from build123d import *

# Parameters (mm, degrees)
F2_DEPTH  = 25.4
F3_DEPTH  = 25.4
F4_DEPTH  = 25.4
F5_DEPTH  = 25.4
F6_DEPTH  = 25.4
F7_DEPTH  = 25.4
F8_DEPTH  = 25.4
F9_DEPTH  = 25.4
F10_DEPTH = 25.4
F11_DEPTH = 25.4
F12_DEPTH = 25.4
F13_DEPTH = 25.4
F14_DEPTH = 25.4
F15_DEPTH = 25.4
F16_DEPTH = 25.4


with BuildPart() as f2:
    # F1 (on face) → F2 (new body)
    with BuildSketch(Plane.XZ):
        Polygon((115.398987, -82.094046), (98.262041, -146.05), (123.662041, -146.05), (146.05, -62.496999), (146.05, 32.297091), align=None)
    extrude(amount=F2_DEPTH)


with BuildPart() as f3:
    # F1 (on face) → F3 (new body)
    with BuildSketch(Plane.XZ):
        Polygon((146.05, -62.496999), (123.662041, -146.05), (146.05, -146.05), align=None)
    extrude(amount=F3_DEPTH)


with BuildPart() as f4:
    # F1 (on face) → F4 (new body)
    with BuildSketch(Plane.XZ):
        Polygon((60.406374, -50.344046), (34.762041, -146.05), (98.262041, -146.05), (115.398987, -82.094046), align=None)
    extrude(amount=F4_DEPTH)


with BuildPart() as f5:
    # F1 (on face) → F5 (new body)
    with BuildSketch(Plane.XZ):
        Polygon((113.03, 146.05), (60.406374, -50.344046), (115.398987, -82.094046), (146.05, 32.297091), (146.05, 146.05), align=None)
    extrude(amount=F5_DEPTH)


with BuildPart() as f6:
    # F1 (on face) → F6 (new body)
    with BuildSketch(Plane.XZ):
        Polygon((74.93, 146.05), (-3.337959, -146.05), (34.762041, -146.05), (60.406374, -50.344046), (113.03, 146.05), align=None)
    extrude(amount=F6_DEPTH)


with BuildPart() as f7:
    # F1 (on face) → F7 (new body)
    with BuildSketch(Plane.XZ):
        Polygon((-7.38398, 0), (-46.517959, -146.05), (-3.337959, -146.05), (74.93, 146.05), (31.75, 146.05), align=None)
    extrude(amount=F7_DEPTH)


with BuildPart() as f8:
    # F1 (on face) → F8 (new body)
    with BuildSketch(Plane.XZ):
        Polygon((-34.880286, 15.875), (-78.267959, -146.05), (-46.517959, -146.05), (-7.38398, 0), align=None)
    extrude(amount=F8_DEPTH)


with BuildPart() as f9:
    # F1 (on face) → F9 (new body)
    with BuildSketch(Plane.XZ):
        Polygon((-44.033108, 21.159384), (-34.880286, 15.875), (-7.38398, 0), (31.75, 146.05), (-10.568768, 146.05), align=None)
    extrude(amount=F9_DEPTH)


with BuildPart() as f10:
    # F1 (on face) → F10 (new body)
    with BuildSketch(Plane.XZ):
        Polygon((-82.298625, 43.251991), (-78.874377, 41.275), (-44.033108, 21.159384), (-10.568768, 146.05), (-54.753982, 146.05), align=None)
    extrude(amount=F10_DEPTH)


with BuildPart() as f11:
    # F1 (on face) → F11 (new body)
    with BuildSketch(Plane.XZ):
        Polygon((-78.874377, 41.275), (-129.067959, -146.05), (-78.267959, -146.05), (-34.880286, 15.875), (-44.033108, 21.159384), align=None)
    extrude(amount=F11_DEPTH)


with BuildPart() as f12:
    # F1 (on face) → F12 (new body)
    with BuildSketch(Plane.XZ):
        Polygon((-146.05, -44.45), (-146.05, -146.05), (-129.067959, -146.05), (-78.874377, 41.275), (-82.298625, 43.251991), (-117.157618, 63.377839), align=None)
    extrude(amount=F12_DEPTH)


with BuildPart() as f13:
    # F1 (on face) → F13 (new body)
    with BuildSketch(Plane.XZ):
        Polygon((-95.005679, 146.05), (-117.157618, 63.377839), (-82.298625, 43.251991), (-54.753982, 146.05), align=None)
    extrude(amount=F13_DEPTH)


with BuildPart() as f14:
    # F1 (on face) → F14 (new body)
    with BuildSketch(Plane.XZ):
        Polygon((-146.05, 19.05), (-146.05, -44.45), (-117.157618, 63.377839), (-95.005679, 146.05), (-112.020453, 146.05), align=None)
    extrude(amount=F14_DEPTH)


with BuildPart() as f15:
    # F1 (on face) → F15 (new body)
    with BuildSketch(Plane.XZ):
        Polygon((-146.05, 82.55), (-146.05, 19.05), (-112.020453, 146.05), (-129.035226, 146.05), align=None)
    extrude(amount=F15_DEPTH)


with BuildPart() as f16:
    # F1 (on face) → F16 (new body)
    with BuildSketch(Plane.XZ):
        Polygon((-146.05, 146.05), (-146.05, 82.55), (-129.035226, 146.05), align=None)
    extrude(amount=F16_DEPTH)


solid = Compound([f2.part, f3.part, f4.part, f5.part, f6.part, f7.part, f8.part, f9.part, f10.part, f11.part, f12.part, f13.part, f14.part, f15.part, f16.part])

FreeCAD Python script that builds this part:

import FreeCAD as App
import Part
import Sketcher
from FreeCAD import Vector
Q = App.Units.Quantity


def add_polygon(sketch, points):
    """Adds a closed chain of lines whose ends are joined by coincident constraints."""
    first, n = sketch.GeometryCount, len(points)
    for a, b in zip(points, points[1:] + points[:1]):
        sketch.addGeometry(Part.LineSegment(App.Vector(*a, 0), App.Vector(*b, 0)), False)
    for i in range(n):
        sketch.addConstraint(Sketcher.Constraint("Coincident", first + i, 2, first + (i + 1) % n, 1))

doc = App.newDocument("Part")
body = doc.addObject("PartDesign::Body", "Body")

# Sketch on XZ plane
sketch1 = doc.addObject("Sketcher::SketchObject", "Sketch")
body.addObject(sketch1)
sketch1.AttachmentSupport = (doc.XZ_Plane, [""])
sketch1.MapMode = "FlatFace"
add_polygon(sketch1, [(115, -82), (98, -146), (124, -146), (146, -62), (146, 32)])  # lines 0-4
sketch1.addConstraint(Sketcher.Constraint("Horizontal", 1))
sketch1.addConstraint(Sketcher.Constraint("Vertical", 3))
sketch1.addConstraint(Sketcher.Constraint("Parallel", 0, 2))
sketch1.addConstraint(Sketcher.Constraint("Parallel", 2, 4))
sketch1.addConstraint(Sketcher.Constraint("DistanceX", 1, 1, 1, 2, Q("1 in")))
sketch1.addConstraint(Sketcher.Constraint("Angle", 0, Q("-105 deg")))
sketch1.addConstraint(Sketcher.Constraint("DistanceY", 0, 2, -1, 1, Q("5.75 in")))
sketch1.addConstraint(Sketcher.Constraint("DistanceX", -1, 1, 2, 2, Q("5.75 in")))
sketch1.addConstraint(Sketcher.Constraint("DistanceY", 2, 2, -1, 1, 62.496999))
sketch1.addConstraint(Sketcher.Constraint("Distance", 4, 118.426419))
pad1 = doc.addObject("PartDesign::Pad", "Pad")
body.addObject(pad1)
pad1.Profile = sketch1
pad1.Length = Q("1 in")
body2 = doc.addObject("PartDesign::Body", "Body001")

# Sketch on XZ plane
sketch2 = doc.addObject("Sketcher::SketchObject", "Sketch001")
body2.addObject(sketch2)
sketch2.AttachmentSupport = (doc.getObject("XZ_Plane001"), [""])
sketch2.MapMode = "FlatFace"
add_polygon(sketch2, [(146, -62), (124, -146), (146, -146)])  # lines 0-2
sketch2.addConstraint(Sketcher.Constraint("Horizontal", 1))
sketch2.addConstraint(Sketcher.Constraint("Vertical", 2))
sketch2.addConstraint(Sketcher.Constraint("Angle", 0, Q("-105 deg")))
sketch2.addConstraint(Sketcher.Constraint("DistanceY", 0, 2, -1, 1, Q("5.75 in")))
sketch2.addConstraint(Sketcher.Constraint("DistanceX", -1, 1, 1, 2, Q("5.75 in")))
sketch2.addConstraint(Sketcher.Constraint("DistanceY", 2, 1, 2, 2, 83.553001))
pad2 = doc.addObject("PartDesign::Pad", "Pad001")
body2.addObject(pad2)
pad2.Profile = sketch2
pad2.Length = Q("1 in")
body3 = doc.addObject("PartDesign::Body", "Body002")

# Sketch on XZ plane
sketch3 = doc.addObject("Sketcher::SketchObject", "Sketch002")
body3.addObject(sketch3)
sketch3.AttachmentSupport = (doc.getObject("XZ_Plane002"), [""])
sketch3.MapMode = "FlatFace"
add_polygon(sketch3, [(60, -50), (35, -146), (98, -146), (115, -82)])  # lines 0-3
sketch3.addConstraint(Sketcher.Constraint("Horizontal", 1))
sketch3.addConstraint(Sketcher.Constraint("Parallel", 0, 2))
sketch3.addConstraint(Sketcher.Constraint("DistanceX", 1, 1, 1, 2, Q("2.5 in")))
sketch3.addConstraint(Sketcher.Constraint("Angle", 0, Q("-105 deg")))
sketch3.addConstraint(Sketcher.Constraint("Angle", 3, Q("150 deg")))
sketch3.addConstraint(Sketcher.Constraint("DistanceY", 0, 2, -1, 1, Q("5.75 in")))
sketch3.addConstraint(Sketcher.Constraint("DistanceX", -1, 1, 0, 2, 34.762041))
sketch3.addConstraint(Sketcher.Constraint("Distance", 0, 99.082094))
pad3 = doc.addObject("PartDesign::Pad", "Pad002")
body3.addObject(pad3)
pad3.Profile = sketch3
pad3.Length = Q("1 in")
body4 = doc.addObject("PartDesign::Body", "Body003")

# Sketch on XZ plane
sketch4 = doc.addObject("Sketcher::SketchObject", "Sketch003")
body4.addObject(sketch4)
sketch4.AttachmentSupport = (doc.getObject("XZ_Plane003"), [""])
sketch4.MapMode = "FlatFace"
add_polygon(sketch4, [(113, 146), (60, -50), (115, -82), (146, 32), (146, 146)])  # lines 0-4
sketch4.addConstraint(Sketcher.Constraint("Vertical", 3))
sketch4.addConstraint(Sketcher.Constraint("Horizontal", 4))
sketch4.addConstraint(Sketcher.Constraint("Parallel", 0, 2))
sketch4.addConstraint(Sketcher.Constraint("DistanceX", 4, 2, 4, 1, Q("1.3 in")))
sketch4.addConstraint(Sketcher.Constraint("Angle", 0, Q("-105 deg")))
sketch4.addConstraint(Sketcher.Constraint("Angle", 1, Q("-30 deg")))
sketch4.addConstraint(Sketcher.Constraint("Distance", 1, Q("2.5 in")))
sketch4.addConstraint(Sketcher.Constraint("DistanceX", -1, 1, 2, 2, Q("5.75 in")))
sketch4.addConstraint(Sketcher.Constraint("DistanceY", -1, 1, 3, 2, Q("5.75 in")))
sketch4.addConstraint(Sketcher.Constraint("Distance", 2, 118.426419))
pad4 = doc.addObject("PartDesign::Pad", "Pad003")
body4.addObject(pad4)
pad4.Profile = sketch4
pad4.Length = Q("1 in")
body5 = doc.addObject("PartDesign::Body", "Body004")

# Sketch on XZ plane
sketch5 = doc.addObject("Sketcher::SketchObject", "Sketch004")
body5.addObject(sketch5)
sketch5.AttachmentSupport = (doc.getObject("XZ_Plane004"), [""])
sketch5.MapMode = "FlatFace"
add_polygon(sketch5, [(75, 146), (-3, -146), (35, -146), (60, -50), (113, 146)])  # lines 0-4
sketch5.addConstraint(Sketcher.Constraint("Horizontal", 1))
sketch5.addConstraint(Sketcher.Constraint("Horizontal", 4))
sketch5.addConstraint(Sketcher.Constraint("Parallel", 0, 2))
sketch5.addConstraint(Sketcher.Constraint("Parallel", 2, 3))
sketch5.addConstraint(Sketcher.Constraint("DistanceX", 1, 1, 1, 2, Q("1.5 in")))
sketch5.addConstraint(Sketcher.Constraint("Angle", 0, Q("-105 deg")))
sketch5.addConstraint(Sketcher.Constraint("DistanceY", 1, 2, 3, 2, Q("11.5 in")))
sketch5.addConstraint(Sketcher.Constraint("DistanceY", 0, 2, -1, 1, Q("5.75 in")))
sketch5.addConstraint(Sketcher.Constraint("DistanceX", -1, 1, 3, 2, Q("4.45 in")))
sketch5.addConstraint(Sketcher.Constraint("Distance", 2, 99.082094))
pad5 = doc.addObject("PartDesign::Pad", "Pad004")
body5.addObject(pad5)
pad5.Profile = sketch5
pad5.Length = Q("1 in")
body6 = doc.addObject("PartDesign::Body", "Body005")

# Sketch on XZ plane
sketch6 = doc.addObject("Sketcher::SketchObject", "Sketch005")
body6.addObject(sketch6)
sketch6.AttachmentSupport = (doc.getObject("XZ_Plane005"), [""])
sketch6.MapMode = "FlatFace"
add_polygon(sketch6, [(-7, 0), (-47, -146), (-3, -146), (75, 146), (32, 146)])  # lines 0-4
sketch6.addConstraint(Sketcher.Constraint("Horizontal", 1))
sketch6.addConstraint(Sketcher.Constraint("Horizontal", 3))
sketch6.addConstraint(Sketcher.Constraint("PointOnObject", 4, 2, -1))
sketch6.addConstraint(Sketcher.Constraint("Parallel", 0, 2))
sketch6.addConstraint(Sketcher.Constraint("Parallel", 2, 4))
sketch6.addConstraint(Sketcher.Constraint("Equal", 0, 4))
sketch6.addConstraint(Sketcher.Constraint("DistanceX", 1, 1, 1, 2, Q("1.7 in")))
sketch6.addConstraint(Sketcher.Constraint("Angle", 0, Q("-105 deg")))
sketch6.addConstraint(Sketcher.Constraint("DistanceY", 1, 2, 2, 2, Q("11.5 in")))
sketch6.addConstraint(Sketcher.Constraint("DistanceX", -1, 1, 2, 2, Q("2.95 in")))
pad6 = doc.addObject("PartDesign::Pad", "Pad005")
body6.addObject(pad6)
pad6.Profile = sketch6
pad6.Length = Q("1 in")
body7 = doc.addObject("PartDesign::Body", "Body006")

# Sketch on XZ plane
sketch7 = doc.addObject("Sketcher::SketchObject", "Sketch006")
body7.addObject(sketch7)
sketch7.AttachmentSupport = (doc.getObject("XZ_Plane006"), [""])
sketch7.MapMode = "FlatFace"
add_polygon(sketch7, [(-35, 16), (-78, -146), (-47, -146), (-7, 0)])  # lines 0-3
sketch7.addConstraint(Sketcher.Constraint("Horizontal", 1))
sketch7.addConstraint(Sketcher.Constraint("PointOnObject", 2, 2, -1))
sketch7.addConstraint(Sketcher.Constraint("Parallel", 0, 2))
sketch7.addConstraint(Sketcher.Constraint("Angle", 0, Q("-105 deg")))
sketch7.addConstraint(Sketcher.Constraint("Angle", 3, Q("149.999999 deg")))
sketch7.addConstraint(Sketcher.Constraint("DistanceX", 1, 1, 1, 2, Q("1.25 in")))
sketch7.addConstraint(Sketcher.Constraint("DistanceY", 0, 2, -1, 1, Q("5.75 in")))
sketch7.addConstraint(Sketcher.Constraint("DistanceX", 0, 2, -1, 1, 78.267959))
pad7 = doc.addObject("PartDesign::Pad", "Pad006")
body7.addObject(pad7)
pad7.Profile = sketch7
pad7.Length = Q("1 in")
body8 = doc.addObject("PartDesign::Body", "Body007")

# Sketch on XZ plane
sketch8 = doc.addObject("Sketcher::SketchObject", "Sketch007")
body8.addObject(sketch8)
sketch8.AttachmentSupport = (doc.getObject("XZ_Plane007"), [""])
sketch8.MapMode = "FlatFace"
add_polygon(sketch8, [(-44, 21), (-35, 16), (-7, 0), (32, 146), (-11, 146)])  # lines 0-4
sketch8.addConstraint(Sketcher.Constraint("Horizontal", 3))
sketch8.addConstraint(Sketcher.Constraint("PointOnObject", 1, 2, -1))
sketch8.addConstraint(Sketcher.Constraint("Parallel", 0, 1))
sketch8.addConstraint(Sketcher.Constraint("Parallel", 2, 4))
sketch8.addConstraint(Sketcher.Constraint("Angle", 0, Q("-29.999999 deg")))
sketch8.addConstraint(Sketcher.Constraint("Angle", 2, Q("75 deg")))
sketch8.addConstraint(Sketcher.Constraint("Distance", 1, Q("1.25 in")))
sketch8.addConstraint(Sketcher.Constraint("DistanceX", -1, 1, 2, 2, Q("1.25 in")))
sketch8.addConstraint(Sketcher.Constraint("DistanceY", -1, 1, 2, 2, Q("5.75 in")))
sketch8.addConstraint(Sketcher.Constraint("Distance", 0, 10.568768))
pad8 = doc.addObject("PartDesign::Pad", "Pad007")
body8.addObject(pad8)
pad8.Profile = sketch8
pad8.Length = Q("1 in")
body9 = doc.addObject("PartDesign::Body", "Body008")

# Sketch on XZ plane
sketch9 = doc.addObject("Sketcher::SketchObject", "Sketch008")
body9.addObject(sketch9)
sketch9.AttachmentSupport = (doc.getObject("XZ_Plane008"), [""])
sketch9.MapMode = "FlatFace"
add_polygon(sketch9, [(-82.3, 43.3), (-78.9, 41.3), (-44, 21.2), (-10.6, 146.1), (-54.8, 146.1)])  # lines 0-4
sketch9.addConstraint(Sketcher.Constraint("Horizontal", 3))
sketch9.addConstraint(Sketcher.Constraint("Parallel", 0, 1))
sketch9.addConstraint(Sketcher.Constraint("Parallel", 2, 4))
sketch9.addConstraint(Sketcher.Constraint("Angle", 0, Q("-30.000006 deg")))
sketch9.addConstraint(Sketcher.Constraint("Angle", 2, Q("75 deg")))
sketch9.addConstraint(Sketcher.Constraint("DistanceY", -1, 1, 2, 2, Q("5.75 in")))
sketch9.addConstraint(Sketcher.Constraint("DistanceY", -1, 1, 0, 2, Q("1.625 in")))
sketch9.addConstraint(Sketcher.Constraint("Distance", 0, 3.953981))
sketch9.addConstraint(Sketcher.Constraint("Distance", 2, 129.29628))
sketch9.addConstraint(Sketcher.Constraint("DistanceX", 0, 2, -1, 1, 78.874377))
pad9 = doc.addObject("PartDesign::Pad", "Pad008")
body9.addObject(pad9)
pad9.Profile = sketch9
pad9.Length = Q("1 in")
body10 = doc.addObject("PartDesign::Body", "Body009")

# Sketch on XZ plane
sketch10 = doc.addObject("Sketcher::SketchObject", "Sketch009")
body10.addObject(sketch10)
sketch10.AttachmentSupport = (doc.getObject("XZ_Plane009"), [""])
sketch10.MapMode = "FlatFace"
add_polygon(sketch10, [(-79, 41), (-129, -146), (-78, -146), (-35, 16), (-44, 21)])  # lines 0-4
sketch10.addConstraint(Sketcher.Constraint("Horizontal", 1))
sketch10.addConstraint(Sketcher.Constraint("Parallel", 0, 2))
sketch10.addConstraint(Sketcher.Constraint("Parallel", 3, 4))
sketch10.addConstraint(Sketcher.Constraint("DistanceX", 1, 1, 1, 2, Q("2 in")))
sketch10.addConstraint(Sketcher.Constraint("Angle", 0, Q("-105 deg")))
sketch10.addConstraint(Sketcher.Constraint("Angle", 3, Q("150.000001 deg")))
sketch10.addConstraint(Sketcher.Constraint("DistanceY", 0, 2, -1, 1, Q("5.75 in")))
sketch10.addConstraint(Sketcher.Constraint("DistanceY", -1, 1, 2, 2, Q("0.625 in")))
sketch10.addConstraint(Sketcher.Constraint("Distance", 3, 10.568768))
sketch10.addConstraint(Sketcher.Constraint("DistanceX", 0, 2, -1, 1, 129.067959))
pad10 = doc.addObject("PartDesign::Pad", "Pad009")
body10.addObject(pad10)
pad10.Profile = sketch10
pad10.Length = Q("1 in")
body11 = doc.addObject("PartDesign::Body", "Body010")

# Sketch on XZ plane
sketch11 = doc.addObject("Sketcher::SketchObject", "Sketch010")
body11.addObject(sketch11)
sketch11.AttachmentSupport = (doc.getObject("XZ_Plane010"), [""])
sketch11.MapMode = "FlatFace"
add_polygon(sketch11, [(-146.1, -44.5), (-146.1, -146.1), (-129.1, -146.1), (-78.9, 41.3), (-82.3, 43.3), (-117.2, 63.4)])  # lines 0-5
sketch11.addConstraint(Sketcher.Constraint("Vertical", 0))
sketch11.addConstraint(Sketcher.Constraint("Horizontal", 1))
sketch11.addConstraint(Sketcher.Constraint("Parallel", 3, 4))
sketch11.addConstraint(Sketcher.Constraint("Parallel", 2, 5))
sketch11.addConstraint(Sketcher.Constraint("DistanceY", 0, 2, 0, 1, Q("4 in")))
sketch11.addConstraint(Sketcher.Constraint("Angle", 2, Q("75 deg")))
sketch11.addConstraint(Sketcher.Constraint("Angle", 3, Q("149.999994 deg")))
sketch11.addConstraint(Sketcher.Constraint("DistanceX", 0, 2, -1, 1, Q("5.75 in")))
sketch11.addConstraint(Sketcher.Constraint("DistanceY", 0, 2, -1, 1, Q("5.75 in")))
sketch11.addConstraint(Sketcher.Constraint("DistanceY", -1, 1, 2, 2, Q("1.625 in")))
sketch11.addConstraint(Sketcher.Constraint("DistanceX", 1, 1, 1, 2, 16.982041))
sketch11.addConstraint(Sketcher.Constraint("Distance", 3, 3.953981))
pad11 = doc.addObject("PartDesign::Pad", "Pad010")
body11.addObject(pad11)
pad11.Profile = sketch11
pad11.Length = Q("1 in")
body12 = doc.addObject("PartDesign::Body", "Body011")

# Sketch on XZ plane
sketch12 = doc.addObject("Sketcher::SketchObject", "Sketch011")
body12.addObject(sketch12)
sketch12.AttachmentSupport = (doc.getObject("XZ_Plane011"), [""])
sketch12.MapMode = "FlatFace"
add_polygon(sketch12, [(-95, 146), (-117, 63), (-82, 43), (-55, 146)])  # lines 0-3
sketch12.addConstraint(Sketcher.Constraint("Horizontal", 3))
sketch12.addConstraint(Sketcher.Constraint("Parallel", 0, 2))
sketch12.addConstraint(Sketcher.Constraint("Angle", 0, Q("-105 deg")))
sketch12.addConstraint(Sketcher.Constraint("Angle", 1, Q("-29.999999 deg")))
sketch12.addConstraint(Sketcher.Constraint("DistanceY", -1, 1, 2, 2, Q("5.75 in")))
sketch12.addConstraint(Sketcher.Constraint("Distance", 0, 85.588519))
sketch12.addConstraint(Sketcher.Constraint("Distance", 2, 106.42433))
sketch12.addConstraint(Sketcher.Constraint("DistanceX", 0, 2, -1, 1, 117.157618))
pad12 = doc.addObject("PartDesign::Pad", "Pad011")
body12.addObject(pad12)
pad12.Profile = sketch12
pad12.Length = Q("1 in")
body13 = doc.addObject("PartDesign::Body", "Body012")

# Sketch on XZ plane
sketch13 = doc.addObject("Sketcher::SketchObject", "Sketch012")
body13.addObject(sketch13)
sketch13.AttachmentSupport = (doc.getObject("XZ_Plane012"), [""])
sketch13.MapMode = "FlatFace"
add_polygon(sketch13, [(-146, 19), (-146, -44), (-117, 63), (-95, 146), (-112, 146)])  # lines 0-4
sketch13.addConstraint(Sketcher.Constraint("Vertical", 0))
sketch13.addConstraint(Sketcher.Constraint("Horizontal", 3))
sketch13.addConstraint(Sketcher.Constraint("Parallel", 1, 2))
sketch13.addConstraint(Sketcher.Constraint("Parallel", 2, 4))
sketch13.addConstraint(Sketcher.Constraint("DistanceY", 0, 2, 0, 1, Q("2.5 in")))
sketch13.addConstraint(Sketcher.Constraint("Angle", 1, Q("75 deg")))
sketch13.addConstraint(Sketcher.Constraint("DistanceY", 4, 2, 3, 2, Q("5 in")))
sketch13.addConstraint(Sketcher.Constraint("DistanceX", 0, 2, -1, 1, Q("5.75 in")))
sketch13.addConstraint(Sketcher.Constraint("DistanceY", 0, 2, -1, 1, Q("1.75 in")))
sketch13.addConstraint(Sketcher.Constraint("Distance", 2, 85.588519))
pad13 = doc.addObject("PartDesign::Pad", "Pad012")
body13.addObject(pad13)
pad13.Profile = sketch13
pad13.Length = Q("1 in")
body14 = doc.addObject("PartDesign::Body", "Body013")

# Sketch on XZ plane
sketch14 = doc.addObject("Sketcher::SketchObject", "Sketch013")
body14.addObject(sketch14)
sketch14.AttachmentSupport = (doc.getObject("XZ_Plane013"), [""])
sketch14.MapMode = "FlatFace"
add_polygon(sketch14, [(-146, 83), (-146, 19), (-112, 146), (-129, 146)])  # lines 0-3
sketch14.addConstraint(Sketcher.Constraint("Vertical", 0))
sketch14.addConstraint(Sketcher.Constraint("Horizontal", 2))
sketch14.addConstraint(Sketcher.Constraint("Parallel", 1, 3))
sketch14.addConstraint(Sketcher.Constraint("DistanceY", 0, 2, 0, 1, Q("2.5 in")))
sketch14.addConstraint(Sketcher.Constraint("Angle", 1, Q("75 deg")))
sketch14.addConstraint(Sketcher.Constraint("DistanceY", 0, 2, 1, 2, Q("5 in")))
sketch14.addConstraint(Sketcher.Constraint("DistanceX", 0, 2, -1, 1, Q("5.75 in")))
sketch14.addConstraint(Sketcher.Constraint("DistanceY", -1, 1, 0, 2, Q("0.75 in")))
pad14 = doc.addObject("PartDesign::Pad", "Pad013")
body14.addObject(pad14)
pad14.Profile = sketch14
pad14.Length = Q("1 in")
body15 = doc.addObject("PartDesign::Body", "Body014")

# Sketch on XZ plane
sketch15 = doc.addObject("Sketcher::SketchObject", "Sketch014")
body15.addObject(sketch15)
sketch15.AttachmentSupport = (doc.getObject("XZ_Plane014"), [""])
sketch15.MapMode = "FlatFace"
add_polygon(sketch15, [(-146, 146), (-146, 83), (-129, 146)])  # lines 0-2
sketch15.addConstraint(Sketcher.Constraint("Vertical", 0))
sketch15.addConstraint(Sketcher.Constraint("Horizontal", 2))
sketch15.addConstraint(Sketcher.Constraint("DistanceY", 0, 2, 0, 1, Q("2.5 in")))
sketch15.addConstraint(Sketcher.Constraint("Angle", 1, Q("75 deg")))
sketch15.addConstraint(Sketcher.Constraint("DistanceX", 0, 2, -1, 1, Q("5.75 in")))
sketch15.addConstraint(Sketcher.Constraint("DistanceY", -1, 1, 0, 2, Q("3.25 in")))
pad15 = doc.addObject("PartDesign::Pad", "Pad014")
body15.addObject(pad15)
pad15.Profile = sketch15
pad15.Length = Q("1 in")

doc.recompute()
